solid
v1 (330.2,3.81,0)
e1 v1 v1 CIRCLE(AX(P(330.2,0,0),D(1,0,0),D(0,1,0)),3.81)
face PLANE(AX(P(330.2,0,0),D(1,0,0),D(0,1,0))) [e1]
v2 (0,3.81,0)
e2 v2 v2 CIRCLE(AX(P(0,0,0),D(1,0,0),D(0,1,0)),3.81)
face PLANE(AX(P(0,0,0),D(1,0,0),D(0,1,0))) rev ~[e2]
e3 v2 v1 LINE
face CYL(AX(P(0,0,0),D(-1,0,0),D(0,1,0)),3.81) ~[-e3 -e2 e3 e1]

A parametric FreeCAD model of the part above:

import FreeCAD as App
import Part
import Sketcher
Q = App.Units.Quantity

doc = App.newDocument("Part")
params = doc.addObject("Spreadsheet::Sheet", "Params")
for row, (alias, value) in enumerate([
    ("sketch1_diameter", "0.3 in"),
    ("pad1_length", "13 in"),
], start=1):
    params.set(f"A{row}", alias)
    params.set(f"B{row}", "=" + value)
    params.setAlias(f"B{row}", alias)

body = doc.addObject("PartDesign::Body", "Body")

sketch1 = doc.addObject("Sketcher::SketchObject", "Sketch")
body.addObject(sketch1)
sketch1.AttachmentSupport = (doc.YZ_Plane, [""])
sketch1.MapMode = "FlatFace"
sketch1.addGeometry(Part.Circle(App.Vector(0, 0, 0), App.Vector(0, 0, 1), 3.8), False)
sketch1.addConstraint([
    Sketcher.Constraint("Coincident", 0, 3, -1, 1),
    Sketcher.Constraint("Diameter", 0, Q("0.3 in")),
])
sketch1.setExpression("Constraints[1]", "Params.sketch1_diameter")
pad1 = doc.addObject("PartDesign::Pad", "Pad")
body.addObject(pad1)
pad1.Profile = sketch1
pad1.setExpression("Length", "Params.pad1_length")

doc.recompute()
